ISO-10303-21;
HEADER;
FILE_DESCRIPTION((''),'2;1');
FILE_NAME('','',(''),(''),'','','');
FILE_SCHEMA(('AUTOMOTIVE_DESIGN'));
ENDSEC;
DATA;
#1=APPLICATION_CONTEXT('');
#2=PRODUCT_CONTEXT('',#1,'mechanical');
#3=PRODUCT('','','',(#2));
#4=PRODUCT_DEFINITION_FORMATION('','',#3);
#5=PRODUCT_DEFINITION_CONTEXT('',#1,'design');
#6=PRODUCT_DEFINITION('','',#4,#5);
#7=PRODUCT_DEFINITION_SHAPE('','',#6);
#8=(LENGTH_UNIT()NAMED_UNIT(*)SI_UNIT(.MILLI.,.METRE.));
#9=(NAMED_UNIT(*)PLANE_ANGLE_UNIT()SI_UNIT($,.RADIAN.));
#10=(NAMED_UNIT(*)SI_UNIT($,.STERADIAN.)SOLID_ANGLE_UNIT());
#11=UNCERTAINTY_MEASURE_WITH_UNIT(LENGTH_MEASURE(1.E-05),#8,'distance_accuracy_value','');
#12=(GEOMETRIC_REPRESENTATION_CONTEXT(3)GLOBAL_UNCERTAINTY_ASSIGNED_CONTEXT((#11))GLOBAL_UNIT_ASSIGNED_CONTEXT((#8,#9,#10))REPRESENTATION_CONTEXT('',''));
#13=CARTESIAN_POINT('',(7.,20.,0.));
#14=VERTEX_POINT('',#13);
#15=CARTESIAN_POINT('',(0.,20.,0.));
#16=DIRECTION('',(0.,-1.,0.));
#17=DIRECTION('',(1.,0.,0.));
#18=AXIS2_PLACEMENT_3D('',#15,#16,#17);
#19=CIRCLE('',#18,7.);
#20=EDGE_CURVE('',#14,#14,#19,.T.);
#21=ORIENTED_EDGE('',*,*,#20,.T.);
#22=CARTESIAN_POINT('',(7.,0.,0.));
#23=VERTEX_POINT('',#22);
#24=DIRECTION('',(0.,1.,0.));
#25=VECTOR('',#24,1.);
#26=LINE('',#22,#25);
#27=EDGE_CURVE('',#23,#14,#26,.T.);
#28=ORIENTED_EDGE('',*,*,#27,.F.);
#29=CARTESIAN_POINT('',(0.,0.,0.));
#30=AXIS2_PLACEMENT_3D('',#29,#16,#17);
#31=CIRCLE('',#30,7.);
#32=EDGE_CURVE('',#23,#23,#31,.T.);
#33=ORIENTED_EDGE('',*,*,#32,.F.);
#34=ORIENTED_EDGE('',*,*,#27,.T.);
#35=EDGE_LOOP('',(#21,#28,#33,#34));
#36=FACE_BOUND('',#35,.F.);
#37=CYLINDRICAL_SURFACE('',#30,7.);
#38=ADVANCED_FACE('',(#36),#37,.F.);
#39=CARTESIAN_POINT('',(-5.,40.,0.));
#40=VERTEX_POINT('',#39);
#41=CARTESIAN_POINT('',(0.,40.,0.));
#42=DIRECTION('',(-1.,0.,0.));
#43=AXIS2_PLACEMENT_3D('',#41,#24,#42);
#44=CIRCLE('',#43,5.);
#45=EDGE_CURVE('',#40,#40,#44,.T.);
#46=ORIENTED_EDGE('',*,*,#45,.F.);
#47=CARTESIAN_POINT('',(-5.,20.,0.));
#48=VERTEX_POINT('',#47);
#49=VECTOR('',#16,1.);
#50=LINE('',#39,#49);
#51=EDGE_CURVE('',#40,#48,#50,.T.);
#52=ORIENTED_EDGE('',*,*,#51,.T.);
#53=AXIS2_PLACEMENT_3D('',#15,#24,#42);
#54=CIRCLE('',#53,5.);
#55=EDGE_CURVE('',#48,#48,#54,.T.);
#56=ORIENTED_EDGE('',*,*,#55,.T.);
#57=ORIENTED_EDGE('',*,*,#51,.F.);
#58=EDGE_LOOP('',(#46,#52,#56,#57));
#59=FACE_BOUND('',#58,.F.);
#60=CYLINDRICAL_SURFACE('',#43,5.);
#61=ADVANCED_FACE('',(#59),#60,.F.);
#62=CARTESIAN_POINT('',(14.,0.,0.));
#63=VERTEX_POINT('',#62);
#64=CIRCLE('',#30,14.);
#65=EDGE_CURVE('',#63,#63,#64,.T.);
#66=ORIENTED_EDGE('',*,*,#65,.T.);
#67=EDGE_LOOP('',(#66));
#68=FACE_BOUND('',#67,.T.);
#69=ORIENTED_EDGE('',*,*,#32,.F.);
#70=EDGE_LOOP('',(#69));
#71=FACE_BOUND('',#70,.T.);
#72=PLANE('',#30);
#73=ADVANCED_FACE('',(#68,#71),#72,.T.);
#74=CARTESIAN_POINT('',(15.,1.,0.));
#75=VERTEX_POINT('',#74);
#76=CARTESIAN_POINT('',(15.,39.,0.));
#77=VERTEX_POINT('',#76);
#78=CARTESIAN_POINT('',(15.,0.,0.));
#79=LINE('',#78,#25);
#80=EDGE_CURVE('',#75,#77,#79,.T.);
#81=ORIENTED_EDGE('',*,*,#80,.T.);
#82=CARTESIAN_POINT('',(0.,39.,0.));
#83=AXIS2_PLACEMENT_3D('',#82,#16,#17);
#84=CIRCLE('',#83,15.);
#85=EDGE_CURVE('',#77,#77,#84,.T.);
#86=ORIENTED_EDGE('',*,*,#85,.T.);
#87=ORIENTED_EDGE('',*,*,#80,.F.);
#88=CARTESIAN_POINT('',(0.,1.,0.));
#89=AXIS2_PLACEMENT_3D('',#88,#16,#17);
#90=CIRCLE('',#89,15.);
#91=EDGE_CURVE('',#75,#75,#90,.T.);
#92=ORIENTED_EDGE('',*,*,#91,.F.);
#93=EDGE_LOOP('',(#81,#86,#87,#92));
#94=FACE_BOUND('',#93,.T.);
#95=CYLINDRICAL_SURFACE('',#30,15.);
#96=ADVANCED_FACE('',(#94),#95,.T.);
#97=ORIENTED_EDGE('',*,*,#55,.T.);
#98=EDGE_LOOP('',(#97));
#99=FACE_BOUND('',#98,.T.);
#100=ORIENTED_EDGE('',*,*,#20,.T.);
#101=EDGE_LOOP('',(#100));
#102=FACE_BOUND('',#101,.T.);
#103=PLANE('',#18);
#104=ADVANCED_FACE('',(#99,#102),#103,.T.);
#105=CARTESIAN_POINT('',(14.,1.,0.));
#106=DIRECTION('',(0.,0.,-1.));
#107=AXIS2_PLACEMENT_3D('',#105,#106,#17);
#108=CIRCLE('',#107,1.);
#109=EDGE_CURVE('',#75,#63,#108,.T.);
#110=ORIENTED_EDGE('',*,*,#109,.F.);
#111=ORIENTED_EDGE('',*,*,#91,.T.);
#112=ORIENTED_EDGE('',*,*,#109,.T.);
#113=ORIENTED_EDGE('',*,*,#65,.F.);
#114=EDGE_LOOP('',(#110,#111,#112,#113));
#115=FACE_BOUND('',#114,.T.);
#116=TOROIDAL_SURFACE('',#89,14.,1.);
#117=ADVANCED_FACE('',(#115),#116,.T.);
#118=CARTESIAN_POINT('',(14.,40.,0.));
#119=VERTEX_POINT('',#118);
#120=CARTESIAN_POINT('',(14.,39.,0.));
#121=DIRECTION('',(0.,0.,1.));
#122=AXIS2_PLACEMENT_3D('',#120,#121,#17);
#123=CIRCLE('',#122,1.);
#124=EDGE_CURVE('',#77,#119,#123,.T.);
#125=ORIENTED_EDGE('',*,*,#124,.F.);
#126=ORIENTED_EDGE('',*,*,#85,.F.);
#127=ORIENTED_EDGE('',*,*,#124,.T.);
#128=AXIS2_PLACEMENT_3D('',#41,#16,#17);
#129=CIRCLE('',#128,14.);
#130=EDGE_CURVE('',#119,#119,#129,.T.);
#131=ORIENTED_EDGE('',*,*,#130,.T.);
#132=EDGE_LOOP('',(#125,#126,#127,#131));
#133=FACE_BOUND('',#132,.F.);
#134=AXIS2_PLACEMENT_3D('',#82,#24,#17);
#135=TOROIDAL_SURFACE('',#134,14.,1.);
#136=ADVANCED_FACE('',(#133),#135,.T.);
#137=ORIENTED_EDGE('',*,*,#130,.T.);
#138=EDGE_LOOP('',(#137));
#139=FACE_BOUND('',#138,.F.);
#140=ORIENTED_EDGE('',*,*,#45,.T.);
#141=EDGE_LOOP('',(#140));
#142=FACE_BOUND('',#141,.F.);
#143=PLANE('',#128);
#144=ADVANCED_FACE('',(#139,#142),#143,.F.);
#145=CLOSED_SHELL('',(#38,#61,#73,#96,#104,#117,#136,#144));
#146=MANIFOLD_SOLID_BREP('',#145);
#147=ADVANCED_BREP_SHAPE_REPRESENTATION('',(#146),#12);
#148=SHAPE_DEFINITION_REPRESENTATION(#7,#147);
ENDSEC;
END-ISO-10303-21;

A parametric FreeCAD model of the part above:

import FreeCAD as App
import Part
import Sketcher
from FreeCAD import Vector


def edges_at(feature, points):
    """Names of the edges that pass closest to the given points."""
    edges = feature.Shape.Edges
    near = lambda p: min(range(len(edges)), key=lambda i: edges[i].distToShape(Part.Vertex(*p))[0])
    return sorted({f"Edge{near(p) + 1}" for p in points})

doc = App.newDocument("Part")
body = doc.addObject("PartDesign::Body", "Body")

# Sketch on XZ plane
sketch1 = doc.addObject("Sketcher::SketchObject", "Sketch")
body.addObject(sketch1)
sketch1.AttachmentSupport = (doc.XZ_Plane, [""])
sketch1.MapMode = "FlatFace"
sketch1.addGeometry(Part.Circle(Vector(0, 0, 0), Vector(0, 0, 1), 15), False)
sketch1.addConstraint([
    Sketcher.Constraint("Coincident", 0, 3, -1, 1),
    Sketcher.Constraint("Diameter", 0, 30.0),
])
pad1 = doc.addObject("PartDesign::Pad", "Pad")
body.addObject(pad1)
pad1.Profile = sketch1
pad1.Length = 40
pad1.Reversed = True
doc.recompute()

fillet = doc.addObject("PartDesign::Fillet", "Fillet")
body.addObject(fillet)
fillet.Base = (pad1, edges_at(pad1, [(-15, 0, 0), (-15, 40, 0)]))
fillet.Radius = 1

# Sketch on XZ plane
sketch2 = doc.addObject("Sketcher::SketchObject", "Sketch001")
body.addObject(sketch2)
sketch2.AttachmentSupport = (doc.XZ_Plane, [""])
sketch2.MapMode = "FlatFace"
sketch2.addGeometry(Part.Circle(Vector(0, 0, 0), Vector(0, 0, 1), 7), False)
sketch2.addConstraint([
    Sketcher.Constraint("Coincident", 0, 3, -1, 1),
    Sketcher.Constraint("Diameter", 0, 14.0),
])
pocket1 = doc.addObject("PartDesign::Pocket", "Pocket")
body.addObject(pocket1)
pocket1.Profile = sketch2
pocket1.Length = 20

# Sketch on XZ plane
sketch3 = doc.addObject("Sketcher::SketchObject", "Sketch002")
body.addObject(sketch3)
sketch3.AttachmentSupport = (doc.XZ_Plane, [""])
sketch3.MapMode = "FlatFace"
sketch3.AttachmentOffset = App.Placement(Vector(0, 0, -40), App.Rotation())
sketch3.addGeometry(Part.Circle(Vector(0, 0, 0), Vector(0, 0, 1), 5), False)
sketch3.addConstraint([
    Sketcher.Constraint("Coincident", 0, 3, -1, 1),
    Sketcher.Constraint("Diameter", 0, 10.0),
])
pocket2 = doc.addObject("PartDesign::Pocket", "Pocket001")
body.addObject(pocket2)
pocket2.Profile = sketch3
pocket2.Length = 20
pocket2.Reversed = True

doc.recompute()
